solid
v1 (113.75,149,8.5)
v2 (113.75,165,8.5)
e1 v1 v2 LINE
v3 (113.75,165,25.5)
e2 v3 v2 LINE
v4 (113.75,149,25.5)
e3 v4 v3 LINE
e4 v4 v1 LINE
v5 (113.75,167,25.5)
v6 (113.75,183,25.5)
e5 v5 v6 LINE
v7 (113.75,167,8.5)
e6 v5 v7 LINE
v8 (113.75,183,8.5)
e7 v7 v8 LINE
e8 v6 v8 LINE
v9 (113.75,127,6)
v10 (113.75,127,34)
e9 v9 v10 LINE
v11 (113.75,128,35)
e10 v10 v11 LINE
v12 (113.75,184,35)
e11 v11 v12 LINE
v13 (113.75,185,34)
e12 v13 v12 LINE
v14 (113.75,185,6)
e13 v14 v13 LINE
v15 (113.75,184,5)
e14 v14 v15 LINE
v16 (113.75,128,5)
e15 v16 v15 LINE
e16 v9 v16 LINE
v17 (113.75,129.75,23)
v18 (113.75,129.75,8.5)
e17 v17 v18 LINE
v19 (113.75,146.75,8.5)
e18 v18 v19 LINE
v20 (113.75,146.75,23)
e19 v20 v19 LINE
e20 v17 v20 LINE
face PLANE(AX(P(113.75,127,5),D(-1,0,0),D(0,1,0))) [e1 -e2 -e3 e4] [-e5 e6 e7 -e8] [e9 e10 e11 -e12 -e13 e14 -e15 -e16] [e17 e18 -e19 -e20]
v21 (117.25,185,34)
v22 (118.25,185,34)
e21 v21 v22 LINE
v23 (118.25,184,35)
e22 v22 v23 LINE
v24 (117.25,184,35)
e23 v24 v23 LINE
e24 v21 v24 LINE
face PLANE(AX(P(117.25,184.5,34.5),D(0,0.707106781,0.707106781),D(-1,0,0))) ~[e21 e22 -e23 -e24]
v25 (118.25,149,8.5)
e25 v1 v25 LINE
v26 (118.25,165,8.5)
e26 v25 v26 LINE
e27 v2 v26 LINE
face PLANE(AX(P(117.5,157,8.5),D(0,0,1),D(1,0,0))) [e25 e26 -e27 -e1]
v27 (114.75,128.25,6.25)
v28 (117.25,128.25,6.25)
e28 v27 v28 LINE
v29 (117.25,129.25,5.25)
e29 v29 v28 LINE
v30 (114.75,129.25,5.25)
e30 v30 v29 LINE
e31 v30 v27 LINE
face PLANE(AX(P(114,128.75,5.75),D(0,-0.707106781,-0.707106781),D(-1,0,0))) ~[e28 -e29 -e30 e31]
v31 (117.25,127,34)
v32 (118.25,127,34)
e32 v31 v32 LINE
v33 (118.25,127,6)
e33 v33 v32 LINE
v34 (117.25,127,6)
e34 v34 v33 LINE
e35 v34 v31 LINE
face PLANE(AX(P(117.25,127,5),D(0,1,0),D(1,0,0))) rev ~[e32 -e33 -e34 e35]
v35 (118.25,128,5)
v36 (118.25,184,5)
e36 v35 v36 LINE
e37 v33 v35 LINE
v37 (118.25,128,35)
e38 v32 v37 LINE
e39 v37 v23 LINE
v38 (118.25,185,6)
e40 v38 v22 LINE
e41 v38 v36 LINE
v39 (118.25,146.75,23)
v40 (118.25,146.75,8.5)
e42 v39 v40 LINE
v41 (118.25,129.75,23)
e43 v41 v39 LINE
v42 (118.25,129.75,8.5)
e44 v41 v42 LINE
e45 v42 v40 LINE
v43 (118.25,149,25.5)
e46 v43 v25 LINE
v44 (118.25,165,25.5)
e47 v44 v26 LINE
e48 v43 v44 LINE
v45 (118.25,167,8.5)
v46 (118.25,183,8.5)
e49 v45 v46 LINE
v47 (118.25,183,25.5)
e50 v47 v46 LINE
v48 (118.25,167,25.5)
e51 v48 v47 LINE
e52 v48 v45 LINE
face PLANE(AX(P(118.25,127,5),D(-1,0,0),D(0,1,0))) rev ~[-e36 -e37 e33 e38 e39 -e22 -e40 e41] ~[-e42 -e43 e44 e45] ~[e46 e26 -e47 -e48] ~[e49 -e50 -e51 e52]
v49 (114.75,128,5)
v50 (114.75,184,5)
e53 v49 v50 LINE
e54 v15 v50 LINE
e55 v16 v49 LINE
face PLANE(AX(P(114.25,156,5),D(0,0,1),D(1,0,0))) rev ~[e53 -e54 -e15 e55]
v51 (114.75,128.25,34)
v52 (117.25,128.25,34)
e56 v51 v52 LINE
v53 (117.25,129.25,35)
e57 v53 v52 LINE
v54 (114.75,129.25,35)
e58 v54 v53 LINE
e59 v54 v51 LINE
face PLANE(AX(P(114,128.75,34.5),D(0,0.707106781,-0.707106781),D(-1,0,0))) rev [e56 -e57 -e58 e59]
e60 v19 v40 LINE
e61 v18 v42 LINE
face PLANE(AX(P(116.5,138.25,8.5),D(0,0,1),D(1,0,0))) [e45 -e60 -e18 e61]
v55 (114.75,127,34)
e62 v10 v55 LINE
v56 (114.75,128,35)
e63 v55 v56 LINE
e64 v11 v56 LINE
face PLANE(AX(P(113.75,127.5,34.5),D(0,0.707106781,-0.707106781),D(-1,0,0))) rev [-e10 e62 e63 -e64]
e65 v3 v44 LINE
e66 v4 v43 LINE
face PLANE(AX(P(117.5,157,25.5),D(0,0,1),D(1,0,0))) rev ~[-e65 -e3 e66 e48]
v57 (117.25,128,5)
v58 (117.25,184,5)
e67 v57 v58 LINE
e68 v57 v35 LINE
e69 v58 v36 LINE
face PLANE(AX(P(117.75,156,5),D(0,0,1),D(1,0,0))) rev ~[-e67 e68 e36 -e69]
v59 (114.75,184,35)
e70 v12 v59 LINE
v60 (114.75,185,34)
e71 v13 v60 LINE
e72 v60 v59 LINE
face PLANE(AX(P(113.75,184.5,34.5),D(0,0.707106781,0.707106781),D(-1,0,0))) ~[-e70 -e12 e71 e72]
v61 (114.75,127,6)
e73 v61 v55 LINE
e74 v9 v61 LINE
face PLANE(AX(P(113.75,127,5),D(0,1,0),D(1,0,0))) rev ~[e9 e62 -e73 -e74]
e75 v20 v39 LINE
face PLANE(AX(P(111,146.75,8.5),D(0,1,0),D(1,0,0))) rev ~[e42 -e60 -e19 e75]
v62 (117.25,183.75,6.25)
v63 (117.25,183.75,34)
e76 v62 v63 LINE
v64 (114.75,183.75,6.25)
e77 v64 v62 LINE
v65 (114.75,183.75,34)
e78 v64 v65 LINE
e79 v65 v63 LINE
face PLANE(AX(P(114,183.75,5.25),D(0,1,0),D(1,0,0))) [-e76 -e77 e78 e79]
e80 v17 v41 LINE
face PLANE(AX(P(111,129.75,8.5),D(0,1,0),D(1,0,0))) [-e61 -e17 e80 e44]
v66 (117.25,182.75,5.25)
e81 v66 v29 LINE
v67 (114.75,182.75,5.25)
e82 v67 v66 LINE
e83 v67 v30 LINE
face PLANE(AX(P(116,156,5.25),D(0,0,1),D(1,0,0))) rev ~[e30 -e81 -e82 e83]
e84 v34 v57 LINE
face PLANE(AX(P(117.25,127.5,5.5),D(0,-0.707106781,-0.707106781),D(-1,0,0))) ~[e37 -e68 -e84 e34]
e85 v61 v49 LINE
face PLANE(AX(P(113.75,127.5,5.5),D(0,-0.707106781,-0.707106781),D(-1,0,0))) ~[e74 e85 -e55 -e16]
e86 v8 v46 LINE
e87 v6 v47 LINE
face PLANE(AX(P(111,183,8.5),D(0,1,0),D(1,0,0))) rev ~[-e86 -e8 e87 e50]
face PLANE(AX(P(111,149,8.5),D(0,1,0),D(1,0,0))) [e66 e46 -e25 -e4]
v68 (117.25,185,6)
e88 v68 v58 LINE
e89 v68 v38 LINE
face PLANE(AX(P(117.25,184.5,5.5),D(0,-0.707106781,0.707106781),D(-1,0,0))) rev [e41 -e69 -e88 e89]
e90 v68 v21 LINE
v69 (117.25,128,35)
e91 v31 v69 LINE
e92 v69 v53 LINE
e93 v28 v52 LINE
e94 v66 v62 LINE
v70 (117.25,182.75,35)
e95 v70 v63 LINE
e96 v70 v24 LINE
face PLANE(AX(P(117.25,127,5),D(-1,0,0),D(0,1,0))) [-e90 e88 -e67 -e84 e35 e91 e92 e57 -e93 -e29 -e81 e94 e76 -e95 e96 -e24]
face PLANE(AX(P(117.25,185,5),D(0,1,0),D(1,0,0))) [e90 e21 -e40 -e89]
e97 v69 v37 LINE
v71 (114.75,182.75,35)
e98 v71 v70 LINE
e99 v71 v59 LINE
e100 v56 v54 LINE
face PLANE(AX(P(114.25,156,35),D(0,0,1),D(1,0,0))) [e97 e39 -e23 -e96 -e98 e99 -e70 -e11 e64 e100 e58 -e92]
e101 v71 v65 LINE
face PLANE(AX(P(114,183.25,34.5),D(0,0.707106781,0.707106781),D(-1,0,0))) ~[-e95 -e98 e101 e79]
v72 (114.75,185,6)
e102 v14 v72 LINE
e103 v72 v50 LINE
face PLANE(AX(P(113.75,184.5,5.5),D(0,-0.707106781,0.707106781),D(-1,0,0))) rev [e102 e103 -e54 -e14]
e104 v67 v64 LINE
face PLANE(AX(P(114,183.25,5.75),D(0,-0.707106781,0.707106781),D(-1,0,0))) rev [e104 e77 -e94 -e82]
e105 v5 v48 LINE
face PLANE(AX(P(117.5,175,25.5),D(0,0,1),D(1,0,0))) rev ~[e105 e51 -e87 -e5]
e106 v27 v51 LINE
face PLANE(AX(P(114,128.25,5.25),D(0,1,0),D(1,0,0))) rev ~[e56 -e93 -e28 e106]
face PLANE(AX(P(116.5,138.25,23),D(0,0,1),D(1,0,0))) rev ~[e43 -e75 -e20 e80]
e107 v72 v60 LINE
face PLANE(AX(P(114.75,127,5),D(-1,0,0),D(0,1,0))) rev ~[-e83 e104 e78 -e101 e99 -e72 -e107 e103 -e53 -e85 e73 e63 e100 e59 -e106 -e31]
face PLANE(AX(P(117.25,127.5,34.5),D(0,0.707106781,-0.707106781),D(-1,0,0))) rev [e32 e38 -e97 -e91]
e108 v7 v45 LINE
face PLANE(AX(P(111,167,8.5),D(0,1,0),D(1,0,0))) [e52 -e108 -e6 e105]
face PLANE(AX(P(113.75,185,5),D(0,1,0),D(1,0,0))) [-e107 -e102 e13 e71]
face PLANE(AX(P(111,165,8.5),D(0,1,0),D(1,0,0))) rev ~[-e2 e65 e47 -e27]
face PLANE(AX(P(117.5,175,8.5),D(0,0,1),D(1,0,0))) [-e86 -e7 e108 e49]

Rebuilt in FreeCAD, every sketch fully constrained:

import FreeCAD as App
import Part
import Sketcher


def edges_at(feature, points):
    """Names of the edges that pass closest to the given points."""
    edges = feature.Shape.Edges
    near = lambda p: min(range(len(edges)), key=lambda i: edges[i].distToShape(Part.Vertex(*p))[0])
    return sorted({f"Edge{near(p) + 1}" for p in points})


def add_polygon(sketch, points):
    """Adds a closed chain of lines whose ends are joined by coincident constraints."""
    first, n = sketch.GeometryCount, len(points)
    for a, b in zip(points, points[1:] + points[:1]):
        sketch.addGeometry(Part.LineSegment(App.Vector(*a, 0), App.Vector(*b, 0)), False)
    for i in range(n):
        sketch.addConstraint(Sketcher.Constraint("Coincident", first + i, 2, first + (i + 1) % n, 1))

doc = App.newDocument("Part")
body = doc.addObject("PartDesign::Body", "Body")

sketch1 = body.newObject("Sketcher::SketchObject", "Sketch")
sketch1.AttachmentSupport = (doc.getObject("XY_Plane"), [""])
sketch1.MapMode = "FlatFace"
sketch1.AttachmentOffset = App.Placement(App.Vector(0, 0, 9), App.Rotation())
add_polygon(sketch1, [(111, 183), (111, 167), (124, 167), (124, 183)])
sketch1.addConstraint(Sketcher.Constraint("Vertical", 0))
sketch1.addConstraint(Sketcher.Constraint("Horizontal", 1))
sketch1.addConstraint(Sketcher.Constraint("Vertical", 2))
sketch1.addConstraint(Sketcher.Constraint("Horizontal", 3))
sketch1.addConstraint(Sketcher.Constraint("DistanceX", 1, 1, 1, 2, 13.0))
sketch1.addConstraint(Sketcher.Constraint("DistanceY", 0, 2, 0, 1, 16.0))
sketch1.addConstraint(Sketcher.Constraint("DistanceX", -1, 1, 0, 2, 111.0))
sketch1.addConstraint(Sketcher.Constraint("DistanceY", -1, 1, 0, 2, 167.0))
pad1 = body.newObject("PartDesign::Pad", "Pad")
pad1.Profile = sketch1
pad1.Length = 17
body2 = doc.addObject("PartDesign::Body", "Body001")

sketch2 = body2.newObject("Sketcher::SketchObject", "Sketch001")
sketch2.AttachmentSupport = (doc.getObject("XY_Plane001"), [""])
sketch2.MapMode = "FlatFace"
sketch2.AttachmentOffset = App.Placement(App.Vector(0, 0, 9), App.Rotation())
add_polygon(sketch2, [(111, 147), (111, 130), (122, 130), (122, 147)])
sketch2.addConstraint(Sketcher.Constraint("Vertical", 0))
sketch2.addConstraint(Sketcher.Constraint("Horizontal", 1))
sketch2.addConstraint(Sketcher.Constraint("Vertical", 2))
sketch2.addConstraint(Sketcher.Constraint("Horizontal", 3))
sketch2.addConstraint(Sketcher.Constraint("DistanceX", 1, 1, 1, 2, 11.0))
sketch2.addConstraint(Sketcher.Constraint("DistanceY", 0, 2, 0, 1, 17.0))
sketch2.addConstraint(Sketcher.Constraint("DistanceX", -1, 1, 0, 2, 111.0))
sketch2.addConstraint(Sketcher.Constraint("DistanceY", -1, 1, 0, 2, 129.75))
pad2 = body2.newObject("PartDesign::Pad", "Pad001")
pad2.Profile = sketch2
pad2.Length = 14.5
body3 = doc.addObject("PartDesign::Body", "Body002")
body3.AllowCompound = True

sketch3 = body3.newObject("Sketcher::SketchObject", "Sketch002")
sketch3.AttachmentSupport = (doc.getObject("XY_Plane002"), [""])
sketch3.MapMode = "FlatFace"
sketch3.AttachmentOffset = App.Placement(App.Vector(0, 0, 9), App.Rotation())
add_polygon(sketch3, [(111, 165), (111, 149), (124, 149), (124, 165)])
sketch3.addConstraint(Sketcher.Constraint("Vertical", 0))
sketch3.addConstraint(Sketcher.Constraint("Horizontal", 1))
sketch3.addConstraint(Sketcher.Constraint("Vertical", 2))
sketch3.addConstraint(Sketcher.Constraint("Horizontal", 3))
sketch3.addConstraint(Sketcher.Constraint("DistanceX", 1, 1, 1, 2, 13.0))
sketch3.addConstraint(Sketcher.Constraint("DistanceY", 0, 2, 0, 1, 16.0))
sketch3.addConstraint(Sketcher.Constraint("DistanceX", -1, 1, 0, 2, 111.0))
sketch3.addConstraint(Sketcher.Constraint("DistanceY", -1, 1, 0, 2, 149.0))
pad3 = body3.newObject("PartDesign::Pad", "Pad002")
pad3.Profile = sketch3
pad3.Length = 17
doc.recompute()

boolean = body3.newObject("PartDesign::Boolean", "Boolean")
boolean.Type = "Fuse"
boolean.addObjects([body])
doc.recompute()

boolean2 = body3.newObject("PartDesign::Boolean", "Boolean001")
boolean2.Type = "Fuse"
boolean2.addObjects([body2])
body4 = doc.addObject("PartDesign::Body", "Body003")
body4.AllowCompound = True
doc.recompute()

body3.Placement = App.Placement(App.Vector(0, 0, -0.5), App.Rotation(App.Vector(0, 0, 1), 0))
boolean3 = body4.newObject("PartDesign::Boolean", "Boolean002")
boolean3.Type = "Fuse"
boolean3.addObjects([body3])
body5 = doc.addObject("PartDesign::Body", "Body004")

sketch4 = body5.newObject("Sketcher::SketchObject", "Sketch003")
sketch4.AttachmentSupport = (doc.getObject("XY_Plane004"), [""])
sketch4.MapMode = "FlatFace"
sketch4.AttachmentOffset = App.Placement(App.Vector(0, 0, 5), App.Rotation())
add_polygon(sketch4, [(117.2, 185), (117.2, 127), (118.2, 127), (118.2, 185)])
sketch4.addConstraint(Sketcher.Constraint("Vertical", 0))
sketch4.addConstraint(Sketcher.Constraint("Horizontal", 1))
sketch4.addConstraint(Sketcher.Constraint("Vertical", 2))
sketch4.addConstraint(Sketcher.Constraint("Horizontal", 3))
sketch4.addConstraint(Sketcher.Constraint("DistanceX", 1, 1, 1, 2, 1.0))
sketch4.addConstraint(Sketcher.Constraint("DistanceY", 0, 2, 0, 1, 58.0))
sketch4.addConstraint(Sketcher.Constraint("DistanceY", -1, 1, 0, 2, 127.0))
sketch4.addConstraint(Sketcher.Constraint("DistanceX", -1, 1, 0, 2, 117.25))
pad4 = body5.newObject("PartDesign::Pad", "Pad003")
pad4.Profile = sketch4
pad4.Length = 30
doc.recompute()

chamfer = body5.newObject("PartDesign::Chamfer", "Chamfer")
chamfer.Base = (pad4, edges_at(pad4, [
    (117.75, 127, 5),
    (117.75, 127, 35),
    (117.75, 185, 5),
    (117.75, 185, 35),
]))
chamfer.Size = 1
body6 = doc.addObject("PartDesign::Body", "Body005")

sketch5 = body6.newObject("Sketcher::SketchObject", "Sketch004")
sketch5.AttachmentSupport = (doc.getObject("XY_Plane005"), [""])
sketch5.MapMode = "FlatFace"
sketch5.AttachmentOffset = App.Placement(App.Vector(0, 0, 5), App.Rotation())
add_polygon(sketch5, [(113.8, 185), (113.8, 127), (114.8, 127), (114.8, 185)])
sketch5.addConstraint(Sketcher.Constraint("Vertical", 0))
sketch5.addConstraint(Sketcher.Constraint("Horizontal", 1))
sketch5.addConstraint(Sketcher.Constraint("Vertical", 2))
sketch5.addConstraint(Sketcher.Constraint("Horizontal", 3))
sketch5.addConstraint(Sketcher.Constraint("DistanceX", 1, 1, 1, 2, 1.0))
sketch5.addConstraint(Sketcher.Constraint("DistanceY", 0, 2, 0, 1, 58.0))
sketch5.addConstraint(Sketcher.Constraint("DistanceY", -1, 1, 0, 2, 127.0))
sketch5.addConstraint(Sketcher.Constraint("DistanceX", -1, 1, 0, 2, 113.75))
pad5 = body6.newObject("PartDesign::Pad", "Pad004")
pad5.Profile = sketch5
pad5.Length = 30
doc.recompute()

chamfer2 = body6.newObject("PartDesign::Chamfer", "Chamfer001")
chamfer2.Base = (pad5, edges_at(pad5, [
    (114.25, 127, 5),
    (114.25, 127, 35),
    (114.25, 185, 5),
    (114.25, 185, 35),
]))
chamfer2.Size = 1
body7 = doc.addObject("PartDesign::Body", "Body006")

sketch6 = body7.newObject("Sketcher::SketchObject", "Sketch005")
sketch6.AttachmentSupport = (doc.getObject("XY_Plane006"), [""])
sketch6.MapMode = "FlatFace"
sketch6.AttachmentOffset = App.Placement(App.Vector(0, 0, 5.25), App.Rotation())
add_polygon(sketch6, [(114, 183.8), (114, 128.2), (118, 128.2), (118, 183.8)])
sketch6.addConstraint(Sketcher.Constraint("Vertical", 0))
sketch6.addConstraint(Sketcher.Constraint("Horizontal", 1))
sketch6.addConstraint(Sketcher.Constraint("Vertical", 2))
sketch6.addConstraint(Sketcher.Constraint("Horizontal", 3))
sketch6.addConstraint(Sketcher.Constraint("DistanceX", 1, 1, 1, 2, 4.0))
sketch6.addConstraint(Sketcher.Constraint("DistanceY", 0, 2, 0, 1, 55.5))
sketch6.addConstraint(Sketcher.Constraint("DistanceX", -1, 1, 0, 2, 114.0))
sketch6.addConstraint(Sketcher.Constraint("DistanceY", -1, 1, 0, 2, 128.25))
pad6 = body7.newObject("PartDesign::Pad", "Pad005")
pad6.Profile = sketch6
pad6.Length = 29.75
doc.recompute()

chamfer3 = body7.newObject("PartDesign::Chamfer", "Chamfer002")
chamfer3.Base = (pad6, edges_at(pad6, [
    (116, 128.25, 5.25),
    (116, 128.25, 35),
    (116, 183.75, 5.25),
    (116, 183.75, 35),
]))
chamfer3.Size = 1
doc.recompute()

boolean4 = body7.newObject("PartDesign::Boolean", "Boolean003")
boolean4.Type = "Fuse"
boolean4.addObjects([body5])
doc.recompute()

boolean5 = body7.newObject("PartDesign::Boolean", "Boolean004")
boolean5.Type = "Fuse"
boolean5.addObjects([body6])
doc.recompute()

boolean6 = body7.newObject("PartDesign::Boolean", "Boolean005")
boolean6.Type = "Cut"
boolean6.addObjects([body4])

doc.recompute()
